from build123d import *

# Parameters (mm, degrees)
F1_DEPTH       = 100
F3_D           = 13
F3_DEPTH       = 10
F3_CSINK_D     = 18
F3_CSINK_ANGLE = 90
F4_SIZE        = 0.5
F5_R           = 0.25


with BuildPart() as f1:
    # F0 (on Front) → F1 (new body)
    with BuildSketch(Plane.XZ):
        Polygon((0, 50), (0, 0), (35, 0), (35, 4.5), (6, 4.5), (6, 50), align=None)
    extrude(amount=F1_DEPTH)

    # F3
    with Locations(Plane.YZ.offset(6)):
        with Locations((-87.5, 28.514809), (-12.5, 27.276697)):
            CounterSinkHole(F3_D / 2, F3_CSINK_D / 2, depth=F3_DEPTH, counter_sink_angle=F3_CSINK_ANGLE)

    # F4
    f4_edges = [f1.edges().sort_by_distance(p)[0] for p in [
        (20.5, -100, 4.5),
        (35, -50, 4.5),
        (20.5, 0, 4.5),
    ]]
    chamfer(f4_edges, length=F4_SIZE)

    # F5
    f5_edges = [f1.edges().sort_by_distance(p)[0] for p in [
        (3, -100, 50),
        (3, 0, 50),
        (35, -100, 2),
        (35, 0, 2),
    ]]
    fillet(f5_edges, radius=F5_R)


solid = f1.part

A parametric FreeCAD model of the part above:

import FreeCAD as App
import Part
import Sketcher
Q = App.Units.Quantity


def edges_at(feature, points):
    """Names of the edges that pass closest to the given points."""
    edges = feature.Shape.Edges
    near = lambda p: min(range(len(edges)), key=lambda i: edges[i].distToShape(Part.Vertex(*p))[0])
    return sorted({f"Edge{near(p) + 1}" for p in points})

doc = App.newDocument("Part")
params = doc.addObject("Spreadsheet::Sheet", "Params")
for row, (alias, value) in enumerate([
    ("sketch1_width", "35 mm"),
    ("sketch1_width2", "29 mm"),
    ("sketch1_height", "50 mm"),
    ("sketch1_height2", "4.5 mm"),
    ("pad1_length", "100 mm"),
    ("sketch2_diameter", "13 mm"),
    ("hole_diameter", "13 mm"),
    ("hole_depth", "10 mm"),
    ("hole_csink_diameter", "18 mm"),
    ("chamfer_size", "0.5 mm"),
    ("fillet_radius", "0.25 mm"),
], start=1):
    params.set(f"A{row}", alias)
    params.set(f"B{row}", "=" + value)
    params.setAlias(f"B{row}", alias)

body = doc.addObject("PartDesign::Body", "Body")

sketch1 = doc.addObject("Sketcher::SketchObject", "Sketch")
body.addObject(sketch1)
sketch1.AttachmentSupport = (doc.XZ_Plane, [""])
sketch1.MapMode = "FlatFace"
sketch1.addGeometry([
    Part.LineSegment(App.Vector(0, 50, 0), App.Vector(0, 0, 0)),
    Part.LineSegment(App.Vector(0, 0, 0), App.Vector(35, 0, 0)),
    Part.LineSegment(App.Vector(35, 0, 0), App.Vector(35, 4.5, 0)),
    Part.LineSegment(App.Vector(35, 4.5, 0), App.Vector(6, 4.5, 0)),
    Part.LineSegment(App.Vector(6, 4.5, 0), App.Vector(6, 50, 0)),
    Part.LineSegment(App.Vector(6, 50, 0), App.Vector(0, 50, 0)),
], False)
sketch1.addConstraint([
    Sketcher.Constraint("Coincident", 0, 2, 1, 1),
    Sketcher.Constraint("Coincident", 1, 2, 2, 1),
    Sketcher.Constraint("Coincident", 2, 2, 3, 1),
    Sketcher.Constraint("Coincident", 3, 2, 4, 1),
    Sketcher.Constraint("Coincident", 4, 2, 5, 1),
    Sketcher.Constraint("Coincident", 5, 2, 0, 1),
    Sketcher.Constraint("Vertical", 0),
    Sketcher.Constraint("Horizontal", 1),
    Sketcher.Constraint("Vertical", 2),
    Sketcher.Constraint("Horizontal", 3),
    Sketcher.Constraint("Vertical", 4),
    Sketcher.Constraint("Horizontal", 5),
    Sketcher.Constraint("Coincident", 0, 2, -1, 1),
    Sketcher.Constraint("DistanceX", 1, 1, 1, 2, Q("35 mm")),
    Sketcher.Constraint("DistanceX", 3, 2, 3, 1, Q("29 mm")),
    Sketcher.Constraint("DistanceY", 0, 2, 0, 1, Q("50 mm")),
    Sketcher.Constraint("DistanceY", 2, 1, 2, 2, Q("4.5 mm")),
])
sketch1.setExpression("Constraints[13]", "Params.sketch1_width")
sketch1.setExpression("Constraints[14]", "Params.sketch1_width2")
sketch1.setExpression("Constraints[15]", "Params.sketch1_height")
sketch1.setExpression("Constraints[16]", "Params.sketch1_height2")
pad1 = doc.addObject("PartDesign::Pad", "Pad")
body.addObject(pad1)
pad1.Profile = sketch1
pad1.setExpression("Length", "Params.pad1_length")

sketch2 = doc.addObject("Sketcher::SketchObject", "Sketch001")
body.addObject(sketch2)
sketch2.AttachmentSupport = (doc.YZ_Plane, [""])
sketch2.MapMode = "FlatFace"
sketch2.AttachmentOffset = App.Placement(App.Vector(0, 0, 6), App.Rotation())
sketch2.addGeometry([
    Part.Circle(App.Vector(-88, 29, 0), App.Vector(0, 0, 1), 6),
    Part.Circle(App.Vector(-12, 27, 0), App.Vector(0, 0, 1), 6),
], False)
sketch2.addConstraint([
    Sketcher.Constraint("Equal", 0, 1),
    Sketcher.Constraint("Diameter", 0, Q("13 mm")),
    Sketcher.Constraint("DistanceX", 0, 3, 1, 3, Q("75 mm")),
    Sketcher.Constraint("DistanceX", 0, 3, -1, 1, Q("87.5 mm")),
    Sketcher.Constraint("DistanceY", -1, 1, 0, 3, Q("28.514809 mm")),
    Sketcher.Constraint("DistanceY", -1, 1, 1, 3, Q("27.276697 mm")),
])
sketch2.setExpression("Constraints[1]", "Params.sketch2_diameter")
doc.recompute()
hole = doc.addObject("PartDesign::Hole", "Hole")
body.addObject(hole)
hole.Profile = sketch2
hole.ThreadType = "None"
hole.setExpression("Diameter", "Params.hole_diameter")
hole.DepthType = "Dimension"
hole.setExpression("Depth", "Params.hole_depth")
hole.DrillPoint = "Flat"
hole.HoleCutType = "Countersink"
hole.setExpression("HoleCutDiameter", "Params.hole_csink_diameter")
hole.HoleCutCountersinkAngle = 90
doc.recompute()

chamfer = doc.addObject("PartDesign::Chamfer", "Chamfer")
body.addObject(chamfer)
chamfer.Base = (hole, edges_at(hole, [(20.5, -100, 4.5), (35, -50, 4.5), (20.5, 0, 4.5)]))
chamfer.setExpression("Size", "Params.chamfer_size")
doc.recompute()

fillet = doc.addObject("PartDesign::Fillet", "Fillet")
body.addObject(fillet)
fillet.Base = (chamfer, edges_at(chamfer, [
    (3, -100, 50),
    (3, 0, 50),
    (35, -100, 2),
    (35, 0, 2),
]))
fillet.setExpression("Radius", "Params.fillet_radius")

doc.recompute()
